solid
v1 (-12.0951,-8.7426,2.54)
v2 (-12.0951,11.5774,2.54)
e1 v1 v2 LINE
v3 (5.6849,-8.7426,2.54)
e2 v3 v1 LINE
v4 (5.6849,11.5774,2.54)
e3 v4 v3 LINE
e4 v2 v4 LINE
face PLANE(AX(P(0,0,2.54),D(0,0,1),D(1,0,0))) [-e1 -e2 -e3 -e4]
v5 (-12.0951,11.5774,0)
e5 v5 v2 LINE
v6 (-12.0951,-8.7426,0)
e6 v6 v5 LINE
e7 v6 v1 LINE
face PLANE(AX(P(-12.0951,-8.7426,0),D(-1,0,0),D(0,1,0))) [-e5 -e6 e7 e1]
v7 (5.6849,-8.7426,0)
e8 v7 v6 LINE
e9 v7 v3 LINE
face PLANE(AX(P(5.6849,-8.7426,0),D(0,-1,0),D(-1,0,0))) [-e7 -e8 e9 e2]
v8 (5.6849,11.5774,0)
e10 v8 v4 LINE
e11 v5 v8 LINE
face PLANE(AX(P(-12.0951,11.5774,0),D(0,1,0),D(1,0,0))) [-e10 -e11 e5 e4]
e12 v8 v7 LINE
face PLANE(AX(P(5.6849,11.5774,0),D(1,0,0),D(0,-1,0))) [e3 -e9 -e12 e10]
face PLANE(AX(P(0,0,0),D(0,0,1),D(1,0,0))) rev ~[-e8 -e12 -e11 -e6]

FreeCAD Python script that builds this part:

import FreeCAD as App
import Part
import Sketcher

V = App.Vector
Q = App.Units.Quantity

doc = App.newDocument("Part")
params = doc.addObject("Spreadsheet::Sheet", "Params")
for row, (alias, value) in enumerate([
    ("sketch1_width", "0.7 in"),
    ("sketch1_height", "0.8 in"),
    ("pad1_length", "0.1 in"),
], start=1):
    params.set(f"A{row}", alias)
    params.set(f"B{row}", "=" + value)
    params.setAlias(f"B{row}", alias)

body = doc.addObject("PartDesign::Body", "Body")

sketch1 = body.newObject("Sketcher::SketchObject", "Sketch")
sketch1.AttachmentSupport = (doc.getObject("XY_Plane"), [""])
sketch1.MapMode = "FlatFace"
sketch1.addGeometry(Part.LineSegment(V(6, 12, 0), V(-12, 12, 0)), False)
sketch1.addGeometry(Part.LineSegment(V(-12, 12, 0), V(-12, -9, 0)), False)
sketch1.addGeometry(Part.LineSegment(V(-12, -9, 0), V(6, -9, 0)), False)
sketch1.addGeometry(Part.LineSegment(V(6, -9, 0), V(6, 12, 0)), False)
sketch1.addConstraint(Sketcher.Constraint("Coincident", 0, 2, 1, 1))
sketch1.addConstraint(Sketcher.Constraint("Coincident", 1, 2, 2, 1))
sketch1.addConstraint(Sketcher.Constraint("Coincident", 2, 2, 3, 1))
sketch1.addConstraint(Sketcher.Constraint("Coincident", 3, 2, 0, 1))
sketch1.addConstraint(Sketcher.Constraint("Horizontal", 0))
sketch1.addConstraint(Sketcher.Constraint("Vertical", 1))
sketch1.addConstraint(Sketcher.Constraint("Horizontal", 2))
sketch1.addConstraint(Sketcher.Constraint("Vertical", 3))
sketch1.addConstraint(Sketcher.Constraint("DistanceX", 0, 2, 0, 1, Q("0.7 in")))
sketch1.addConstraint(Sketcher.Constraint("DistanceY", 1, 2, 1, 1, Q("0.8 in")))
sketch1.addConstraint(Sketcher.Constraint("DistanceY", -1, 1, 0, 2, Q("0.4558 in")))
sketch1.addConstraint(Sketcher.Constraint("DistanceX", 0, 2, -1, 1, Q("12.095 mm")))
sketch1.setExpression("Constraints[8]", "Params.sketch1_width")
sketch1.setExpression("Constraints[9]", "Params.sketch1_height")
pad1 = body.newObject("PartDesign::Pad", "Pad")
pad1.Profile = sketch1
pad1.setExpression("Length", "Params.pad1_length")

doc.recompute()
